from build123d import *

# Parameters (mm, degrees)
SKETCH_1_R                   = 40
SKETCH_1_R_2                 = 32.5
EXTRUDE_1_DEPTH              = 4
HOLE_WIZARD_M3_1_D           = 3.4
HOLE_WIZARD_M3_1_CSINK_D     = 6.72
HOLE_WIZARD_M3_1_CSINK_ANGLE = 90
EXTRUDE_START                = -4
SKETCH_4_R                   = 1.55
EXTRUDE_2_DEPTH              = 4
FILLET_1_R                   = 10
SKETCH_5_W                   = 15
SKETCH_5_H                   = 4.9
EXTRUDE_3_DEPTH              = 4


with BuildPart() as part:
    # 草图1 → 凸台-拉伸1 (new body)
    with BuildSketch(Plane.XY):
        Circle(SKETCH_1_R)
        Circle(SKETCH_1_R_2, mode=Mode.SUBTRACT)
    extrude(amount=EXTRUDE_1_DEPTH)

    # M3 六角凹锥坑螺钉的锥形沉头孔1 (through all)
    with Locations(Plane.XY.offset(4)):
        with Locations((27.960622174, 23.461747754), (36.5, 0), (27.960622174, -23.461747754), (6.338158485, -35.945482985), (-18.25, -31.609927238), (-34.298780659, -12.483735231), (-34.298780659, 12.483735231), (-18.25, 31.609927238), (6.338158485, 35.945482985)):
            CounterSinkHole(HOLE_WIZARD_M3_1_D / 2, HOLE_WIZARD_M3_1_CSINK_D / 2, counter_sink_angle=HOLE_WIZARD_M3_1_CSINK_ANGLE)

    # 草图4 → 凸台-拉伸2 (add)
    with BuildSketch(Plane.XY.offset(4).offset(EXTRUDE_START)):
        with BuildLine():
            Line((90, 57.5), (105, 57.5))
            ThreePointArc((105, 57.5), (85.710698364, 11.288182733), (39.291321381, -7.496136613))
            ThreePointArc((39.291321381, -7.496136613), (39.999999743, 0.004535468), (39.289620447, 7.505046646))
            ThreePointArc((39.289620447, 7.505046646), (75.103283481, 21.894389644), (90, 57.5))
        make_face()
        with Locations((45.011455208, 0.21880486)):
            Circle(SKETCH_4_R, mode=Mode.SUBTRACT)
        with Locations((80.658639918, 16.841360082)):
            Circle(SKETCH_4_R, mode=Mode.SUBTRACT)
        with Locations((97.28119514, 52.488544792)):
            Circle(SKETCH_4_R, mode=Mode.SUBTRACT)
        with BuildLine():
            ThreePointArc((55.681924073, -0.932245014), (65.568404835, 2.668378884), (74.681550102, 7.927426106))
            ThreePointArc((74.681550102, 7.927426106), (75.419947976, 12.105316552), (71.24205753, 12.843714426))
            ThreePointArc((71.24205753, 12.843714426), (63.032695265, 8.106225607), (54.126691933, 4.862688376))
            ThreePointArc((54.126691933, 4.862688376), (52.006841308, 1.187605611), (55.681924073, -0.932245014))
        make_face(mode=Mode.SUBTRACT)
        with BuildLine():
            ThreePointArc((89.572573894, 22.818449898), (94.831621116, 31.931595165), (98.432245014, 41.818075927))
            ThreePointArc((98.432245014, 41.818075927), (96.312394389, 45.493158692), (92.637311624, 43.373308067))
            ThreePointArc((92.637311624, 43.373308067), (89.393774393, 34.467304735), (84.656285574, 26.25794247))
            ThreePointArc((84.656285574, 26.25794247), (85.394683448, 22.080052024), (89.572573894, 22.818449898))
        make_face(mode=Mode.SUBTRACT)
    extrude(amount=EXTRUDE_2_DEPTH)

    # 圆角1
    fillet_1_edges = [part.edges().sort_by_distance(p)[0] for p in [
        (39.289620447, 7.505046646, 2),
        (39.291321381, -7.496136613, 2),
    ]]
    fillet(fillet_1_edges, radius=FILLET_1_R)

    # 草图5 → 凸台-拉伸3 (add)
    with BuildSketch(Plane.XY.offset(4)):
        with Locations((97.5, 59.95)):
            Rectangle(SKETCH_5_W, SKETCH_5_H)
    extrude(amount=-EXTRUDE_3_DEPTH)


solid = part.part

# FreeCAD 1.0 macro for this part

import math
import FreeCAD as App
import Part
import Sketcher
from FreeCAD import Vector
Q = App.Units.Quantity


def edges_at(feature, points):
    """Names of the edges that pass closest to the given points."""
    edges = feature.Shape.Edges
    near = lambda p: min(range(len(edges)), key=lambda i: edges[i].distToShape(Part.Vertex(*p))[0])
    return sorted({f"Edge{near(p) + 1}" for p in points})

doc = App.newDocument("Part")
body = doc.addObject("PartDesign::Body", "Body")

# Sketch on XY plane
sketch1 = body.newObject("Sketcher::SketchObject", "Sketch")
sketch1.AttachmentSupport = (doc.getObject("XY_Plane"), [""])
sketch1.MapMode = "FlatFace"
sketch1.addGeometry(Part.Circle(Vector(0, 0, 0), Vector(0, 0, 1), 40), False)
sketch1.addGeometry(Part.Circle(Vector(0, 0, 0), Vector(0, 0, 1), 32), False)
sketch1.addConstraint(Sketcher.Constraint("Coincident", 0, 3, -1, 1))
sketch1.addConstraint(Sketcher.Constraint("Coincident", 1, 3, -1, 1))
sketch1.addConstraint(Sketcher.Constraint("Diameter", 0, Q("80 mm")))
sketch1.addConstraint(Sketcher.Constraint("Diameter", 1, Q("65 mm")))
pad1 = body.newObject("PartDesign::Pad", "Pad")
pad1.Profile = sketch1
pad1.Length = 4

# Sketch on XY plane
sketch2 = body.newObject("Sketcher::SketchObject", "Sketch001")
sketch2.AttachmentSupport = (doc.getObject("XY_Plane"), [""])
sketch2.MapMode = "FlatFace"
sketch2.AttachmentOffset = App.Placement(Vector(0, 0, 4), App.Rotation())
sketch2.addGeometry(Part.Circle(Vector(28, 23.5, 0), Vector(0, 0, 1), 1.7), False)
sketch2.addGeometry(Part.Circle(Vector(36.5, 0, 0), Vector(0, 0, 1), 1.7), False)
sketch2.addGeometry(Part.Circle(Vector(28, -23.5, 0), Vector(0, 0, 1), 1.7), False)
sketch2.addGeometry(Part.Circle(Vector(6.3, -35.9, 0), Vector(0, 0, 1), 1.7), False)
sketch2.addGeometry(Part.Circle(Vector(-18.2, -31.6, 0), Vector(0, 0, 1), 1.7), False)
sketch2.addGeometry(Part.Circle(Vector(-34.3, -12.5, 0), Vector(0, 0, 1), 1.7), False)
sketch2.addGeometry(Part.Circle(Vector(-34.3, 12.5, 0), Vector(0, 0, 1), 1.7), False)
sketch2.addGeometry(Part.Circle(Vector(-18.2, 31.6, 0), Vector(0, 0, 1), 1.7), False)
sketch2.addGeometry(Part.Circle(Vector(6.3, 35.9, 0), Vector(0, 0, 1), 1.7), False)
sketch2.addConstraint(Sketcher.Constraint("Equal", 0, 1))
sketch2.addConstraint(Sketcher.Constraint("Equal", 1, 2))
sketch2.addConstraint(Sketcher.Constraint("Equal", 2, 3))
sketch2.addConstraint(Sketcher.Constraint("Equal", 3, 4))
sketch2.addConstraint(Sketcher.Constraint("Equal", 4, 5))
sketch2.addConstraint(Sketcher.Constraint("Equal", 5, 6))
sketch2.addConstraint(Sketcher.Constraint("Equal", 6, 7))
sketch2.addConstraint(Sketcher.Constraint("Equal", 7, 8))
sketch2.addConstraint(Sketcher.Constraint("Symmetric", 0, 3, 2, 3, -1))
sketch2.addConstraint(Sketcher.Constraint("Symmetric", 5, 3, 6, 3, -1))
sketch2.addConstraint(Sketcher.Constraint("Symmetric", 4, 3, 7, 3, -1))
sketch2.addConstraint(Sketcher.Constraint("Symmetric", 3, 3, 8, 3, -1))
sketch2.addConstraint(Sketcher.Constraint("PointOnObject", 1, 3, -1))
sketch2.addConstraint(Sketcher.Constraint("Diameter", 0, Q("3.4 mm")))
sketch2.addConstraint(Sketcher.Constraint("DistanceX", -1, 1, 1, 3, Q("36.5 mm")))
sketch2.addConstraint(Sketcher.Constraint("DistanceX", 4, 3, -1, 1, Q("18.25 mm")))
sketch2.addConstraint(Sketcher.Constraint("DistanceX", -1, 1, 3, 3, Q("6.338158 mm")))
sketch2.addConstraint(Sketcher.Constraint("DistanceX", 5, 3, -1, 1, Q("34.298781 mm")))
sketch2.addConstraint(Sketcher.Constraint("DistanceY", 3, 3, 0, 3, Q("59.407231 mm")))
sketch2.addConstraint(Sketcher.Constraint("DistanceY", 4, 3, 2, 3, Q("8.148179 mm")))
sketch2.addConstraint(Sketcher.Constraint("DistanceY", 5, 3, 6, 3, Q("24.96747 mm")))
sketch2.addConstraint(Sketcher.Constraint("DistanceY", 3, 3, 6, 3, Q("48.429218 mm")))
sketch2.addConstraint(Sketcher.Constraint("DistanceX", -1, 1, 0, 3, Q("27.960622 mm")))
doc.recompute()
hole = body.newObject("PartDesign::Hole", "Hole")
hole.Profile = sketch2
hole.ThreadType = "None"
hole.Diameter = 3.4
hole.DepthType = "ThroughAll"
hole.HoleCutType = "Countersink"
hole.HoleCutDiameter = 6.72
hole.HoleCutCountersinkAngle = 90

# Sketch on XY plane
sketch3 = body.newObject("Sketcher::SketchObject", "Sketch002")
sketch3.AttachmentSupport = (doc.getObject("XY_Plane"), [""])
sketch3.MapMode = "FlatFace"
sketch3.addGeometry(Part.LineSegment(Vector(105, 57.5, 0), Vector(90, 57.5, 0)), False)
sketch3.addGeometry(Part.ArcOfCircle(Part.Circle(Vector(40, 57.5, 0), Vector(0, 0, 1), 50), math.radians(-91), math.radians(0)), False)
sketch3.addGeometry(Part.ArcOfCircle(Part.Circle(Vector(0, 0, 0), Vector(0, 0, 1), 40), math.radians(-11), math.radians(11)), False)
sketch3.addGeometry(Part.ArcOfCircle(Part.Circle(Vector(40, 57.5, 0), Vector(0, 0, 1), 65), math.radians(-91), math.radians(0)), False)
sketch3.addGeometry(Part.Circle(Vector(80.7, 16.8, 0), Vector(0, 0, 1), 1.6), False)
sketch3.addGeometry(Part.ArcOfCircle(Part.Circle(Vector(54.9, 2, 0), Vector(0, 0, 1), 3), math.radians(105), math.radians(285)), False)
sketch3.addGeometry(Part.ArcOfCircle(Part.Circle(Vector(40, 57.5, 0), Vector(0, 0, 1), 54.5), math.radians(-74.98), math.radians(-55.02)), False)
sketch3.addGeometry(Part.ArcOfCircle(Part.Circle(Vector(73, 10.4, 0), Vector(0, 0, 1), 3), math.radians(-55), math.radians(125)), False)
sketch3.addGeometry(Part.ArcOfCircle(Part.Circle(Vector(40, 57.5, 0), Vector(0, 0, 1), 60.5), math.radians(-74.98), math.radians(-55.02)), False)
sketch3.addGeometry(Part.Circle(Vector(45, 0.2, 0), Vector(0, 0, 1), 1.6), False)
sketch3.addGeometry(Part.ArcOfCircle(Part.Circle(Vector(87.1, 24.5, 0), Vector(0, 0, 1), 3), math.radians(145), math.radians(325)), False)
sketch3.addGeometry(Part.ArcOfCircle(Part.Circle(Vector(40, 57.5, 0), Vector(0, 0, 1), 54.5), math.radians(-34.98), math.radians(-15.02)), False)
sketch3.addGeometry(Part.ArcOfCircle(Part.Circle(Vector(95.5, 42.6, 0), Vector(0, 0, 1), 3), math.radians(-15), math.radians(165)), False)
sketch3.addGeometry(Part.ArcOfCircle(Part.Circle(Vector(40, 57.5, 0), Vector(0, 0, 1), 60.5), math.radians(-34.98), math.radians(-15.02)), False)
sketch3.addGeometry(Part.Circle(Vector(97.3, 52.5, 0), Vector(0, 0, 1), 1.6), False)
sketch3.addConstraint(Sketcher.Constraint("Coincident", 0, 2, 1, 2))
sketch3.addConstraint(Sketcher.Constraint("Coincident", 1, 1, 2, 2))
sketch3.addConstraint(Sketcher.Constraint("Coincident", 2, 1, 3, 1))
sketch3.addConstraint(Sketcher.Constraint("Coincident", 3, 2, 0, 1))
sketch3.addConstraint(Sketcher.Constraint("Tangent", 5, 1, 6, 1))
sketch3.addConstraint(Sketcher.Constraint("Tangent", 6, 2, 7, 2))
sketch3.addConstraint(Sketcher.Constraint("Tangent", 7, 1, 8, 2))
sketch3.addConstraint(Sketcher.Constraint("Tangent", 8, 1, 5, 2))
sketch3.addConstraint(Sketcher.Constraint("Tangent", 10, 1, 11, 1))
sketch3.addConstraint(Sketcher.Constraint("Tangent", 11, 2, 12, 2))
sketch3.addConstraint(Sketcher.Constraint("Tangent", 12, 1, 13, 2))
sketch3.addConstraint(Sketcher.Constraint("Tangent", 13, 1, 10, 2))
sketch3.addConstraint(Sketcher.Constraint("Horizontal", 0))
sketch3.addConstraint(Sketcher.Constraint("Coincident", 2, 3, -1, 1))
sketch3.addConstraint(Sketcher.Constraint("Coincident", 3, 3, 1, 3))
sketch3.addConstraint(Sketcher.Constraint("Coincident", 6, 3, 1, 3))
sketch3.addConstraint(Sketcher.Constraint("Coincident", 8, 3, 1, 3))
sketch3.addConstraint(Sketcher.Constraint("Coincident", 11, 3, 1, 3))
sketch3.addConstraint(Sketcher.Constraint("Coincident", 13, 3, 1, 3))
sketch3.addConstraint(Sketcher.Constraint("Equal", 4, 9))
sketch3.addConstraint(Sketcher.Constraint("Equal", 7, 10))
sketch3.addConstraint(Sketcher.Constraint("Equal", 6, 11))
sketch3.addConstraint(Sketcher.Constraint("Equal", 9, 14))
sketch3.addConstraint(Sketcher.Constraint("Horizontal", 13, 3, 0, 2))
sketch3.addConstraint(Sketcher.Constraint("Radius", 1, Q("50 mm")))
sketch3.addConstraint(Sketcher.Constraint("Radius", 2, Q("40 mm")))
sketch3.addConstraint(Sketcher.Constraint("Radius", 3, Q("65 mm")))
sketch3.addConstraint(Sketcher.Constraint("Radius", 5, Q("3 mm")))
sketch3.addConstraint(Sketcher.Constraint("Diameter", 4, Q("3.1 mm")))
sketch3.addConstraint(Sketcher.Constraint("Radius", 6, Q("54.5 mm")))
sketch3.addConstraint(Sketcher.Constraint("DistanceX", -1, 1, 1, 3, Q("40 mm")))
sketch3.addConstraint(Sketcher.Constraint("DistanceY", -1, 1, 1, 3, Q("57.5 mm")))
sketch3.addConstraint(Sketcher.Constraint("DistanceX", -1, 1, 4, 3, Q("80.65864 mm")))
sketch3.addConstraint(Sketcher.Constraint("DistanceY", -1, 1, 4, 3, Q("16.84136 mm")))
sketch3.addConstraint(Sketcher.Constraint("DistanceX", -1, 1, 5, 3, Q("54.904308 mm")))
sketch3.addConstraint(Sketcher.Constraint("DistanceY", -1, 1, 7, 3, Q("10.38557 mm")))
sketch3.addConstraint(Sketcher.Constraint("DistanceX", -1, 1, 10, 3, Q("87.11443 mm")))
sketch3.addConstraint(Sketcher.Constraint("DistanceX", -1, 1, 12, 3, Q("95.534778 mm")))
sketch3.addConstraint(Sketcher.Constraint("DistanceX", 9, 3, 7, 3, Q("27.950349 mm")))
sketch3.addConstraint(Sketcher.Constraint("DistanceY", 9, 3, 10, 3, Q("24.319391 mm")))
sketch3.addConstraint(Sketcher.Constraint("DistanceY", 10, 3, 14, 3, Q("27.950349 mm")))
sketch3.addConstraint(Sketcher.Constraint("DistanceX", 7, 3, 14, 3, Q("24.319391 mm")))
pad2 = body.newObject("PartDesign::Pad", "Pad001")
pad2.Profile = sketch3
pad2.Length = 4
doc.recompute()

fillet = body.newObject("PartDesign::Fillet", "Fillet")
fillet.Base = (pad2, edges_at(pad2, [(39.29, 7.505, 2), (39.291, -7.496, 2)]))
fillet.Radius = 10

# Sketch on XY plane
sketch4 = body.newObject("Sketcher::SketchObject", "Sketch003")
sketch4.AttachmentSupport = (doc.getObject("XY_Plane"), [""])
sketch4.MapMode = "FlatFace"
sketch4.AttachmentOffset = App.Placement(Vector(0, 0, 4), App.Rotation())
sketch4.addGeometry(Part.LineSegment(Vector(90, 62.4, 0), Vector(90, 57.5, 0)), False)
sketch4.addGeometry(Part.LineSegment(Vector(90, 57.5, 0), Vector(105, 57.5, 0)), False)
sketch4.addGeometry(Part.LineSegment(Vector(105, 57.5, 0), Vector(105, 62.4, 0)), False)
sketch4.addGeometry(Part.LineSegment(Vector(105, 62.4, 0), Vector(90, 62.4, 0)), False)
sketch4.addConstraint(Sketcher.Constraint("Coincident", 0, 2, 1, 1))
sketch4.addConstraint(Sketcher.Constraint("Coincident", 1, 2, 2, 1))
sketch4.addConstraint(Sketcher.Constraint("Coincident", 2, 2, 3, 1))
sketch4.addConstraint(Sketcher.Constraint("Coincident", 3, 2, 0, 1))
sketch4.addConstraint(Sketcher.Constraint("Vertical", 0))
sketch4.addConstraint(Sketcher.Constraint("Horizontal", 1))
sketch4.addConstraint(Sketcher.Constraint("Vertical", 2))
sketch4.addConstraint(Sketcher.Constraint("Horizontal", 3))
sketch4.addConstraint(Sketcher.Constraint("DistanceX", 1, 1, 1, 2, Q("15 mm")))
sketch4.addConstraint(Sketcher.Constraint("DistanceY", 0, 2, 0, 1, Q("4.9 mm")))
sketch4.addConstraint(Sketcher.Constraint("DistanceX", -1, 1, 0, 2, Q("90 mm")))
sketch4.addConstraint(Sketcher.Constraint("DistanceY", -1, 1, 0, 2, Q("57.5 mm")))
pad3 = body.newObject("PartDesign::Pad", "Pad002")
pad3.Profile = sketch4
pad3.Length = 4
pad3.Reversed = True

doc.recompute()
